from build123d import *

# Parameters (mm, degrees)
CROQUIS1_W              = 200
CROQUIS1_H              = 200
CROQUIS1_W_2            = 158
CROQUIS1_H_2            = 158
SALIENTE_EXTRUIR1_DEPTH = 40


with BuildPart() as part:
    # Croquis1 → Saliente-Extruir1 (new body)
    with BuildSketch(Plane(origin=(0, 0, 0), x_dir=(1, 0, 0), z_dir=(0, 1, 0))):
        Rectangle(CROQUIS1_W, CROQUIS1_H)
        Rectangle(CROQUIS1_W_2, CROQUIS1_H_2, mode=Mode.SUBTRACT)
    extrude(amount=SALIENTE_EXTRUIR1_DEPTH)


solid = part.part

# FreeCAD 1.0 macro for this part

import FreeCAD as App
import Part
import Sketcher
Q = App.Units.Quantity


def add_polygon(sketch, points):
    """Adds a closed chain of lines whose ends are joined by coincident constraints."""
    first, n = sketch.GeometryCount, len(points)
    for a, b in zip(points, points[1:] + points[:1]):
        sketch.addGeometry(Part.LineSegment(App.Vector(*a, 0), App.Vector(*b, 0)), False)
    for i in range(n):
        sketch.addConstraint(Sketcher.Constraint("Coincident", first + i, 2, first + (i + 1) % n, 1))

doc = App.newDocument("Part")
body = doc.addObject("PartDesign::Body", "Body")

# Sketch on XZ plane
sketch1 = doc.addObject("Sketcher::SketchObject", "Sketch")
body.addObject(sketch1)
sketch1.AttachmentSupport = (doc.XZ_Plane, [""])
sketch1.MapMode = "FlatFace"
add_polygon(sketch1, [(-100, -100), (-100, 100), (100, 100), (100, -100)])  # lines 0-3
add_polygon(sketch1, [(79, 79), (-79, 79), (-79, -79), (79, -79)])  # lines 4-7
sketch1.addConstraint(Sketcher.Constraint("Vertical", 0))
sketch1.addConstraint(Sketcher.Constraint("Horizontal", 1))
sketch1.addConstraint(Sketcher.Constraint("Vertical", 2))
sketch1.addConstraint(Sketcher.Constraint("Horizontal", 3))
sketch1.addConstraint(Sketcher.Constraint("Horizontal", 4))
sketch1.addConstraint(Sketcher.Constraint("Vertical", 5))
sketch1.addConstraint(Sketcher.Constraint("Horizontal", 6))
sketch1.addConstraint(Sketcher.Constraint("Vertical", 7))
sketch1.addConstraint(Sketcher.Constraint("Symmetric", 0, 2, 2, 2, -1, 1))
sketch1.addConstraint(Sketcher.Constraint("Symmetric", 4, 2, 6, 2, -1, 1))
sketch1.addConstraint(Sketcher.Constraint("Equal", 3, 0))
sketch1.addConstraint(Sketcher.Constraint("Equal", 6, 5))
sketch1.addConstraint(Sketcher.Constraint("DistanceX", 1, 1, 1, 2, Q("200 mm")))
sketch1.addConstraint(Sketcher.Constraint("DistanceX", 4, 2, 4, 1, Q("158 mm")))
pad1 = doc.addObject("PartDesign::Pad", "Pad")
body.addObject(pad1)
pad1.Profile = sketch1
pad1.Length = 40
pad1.Reversed = True

doc.recompute()
